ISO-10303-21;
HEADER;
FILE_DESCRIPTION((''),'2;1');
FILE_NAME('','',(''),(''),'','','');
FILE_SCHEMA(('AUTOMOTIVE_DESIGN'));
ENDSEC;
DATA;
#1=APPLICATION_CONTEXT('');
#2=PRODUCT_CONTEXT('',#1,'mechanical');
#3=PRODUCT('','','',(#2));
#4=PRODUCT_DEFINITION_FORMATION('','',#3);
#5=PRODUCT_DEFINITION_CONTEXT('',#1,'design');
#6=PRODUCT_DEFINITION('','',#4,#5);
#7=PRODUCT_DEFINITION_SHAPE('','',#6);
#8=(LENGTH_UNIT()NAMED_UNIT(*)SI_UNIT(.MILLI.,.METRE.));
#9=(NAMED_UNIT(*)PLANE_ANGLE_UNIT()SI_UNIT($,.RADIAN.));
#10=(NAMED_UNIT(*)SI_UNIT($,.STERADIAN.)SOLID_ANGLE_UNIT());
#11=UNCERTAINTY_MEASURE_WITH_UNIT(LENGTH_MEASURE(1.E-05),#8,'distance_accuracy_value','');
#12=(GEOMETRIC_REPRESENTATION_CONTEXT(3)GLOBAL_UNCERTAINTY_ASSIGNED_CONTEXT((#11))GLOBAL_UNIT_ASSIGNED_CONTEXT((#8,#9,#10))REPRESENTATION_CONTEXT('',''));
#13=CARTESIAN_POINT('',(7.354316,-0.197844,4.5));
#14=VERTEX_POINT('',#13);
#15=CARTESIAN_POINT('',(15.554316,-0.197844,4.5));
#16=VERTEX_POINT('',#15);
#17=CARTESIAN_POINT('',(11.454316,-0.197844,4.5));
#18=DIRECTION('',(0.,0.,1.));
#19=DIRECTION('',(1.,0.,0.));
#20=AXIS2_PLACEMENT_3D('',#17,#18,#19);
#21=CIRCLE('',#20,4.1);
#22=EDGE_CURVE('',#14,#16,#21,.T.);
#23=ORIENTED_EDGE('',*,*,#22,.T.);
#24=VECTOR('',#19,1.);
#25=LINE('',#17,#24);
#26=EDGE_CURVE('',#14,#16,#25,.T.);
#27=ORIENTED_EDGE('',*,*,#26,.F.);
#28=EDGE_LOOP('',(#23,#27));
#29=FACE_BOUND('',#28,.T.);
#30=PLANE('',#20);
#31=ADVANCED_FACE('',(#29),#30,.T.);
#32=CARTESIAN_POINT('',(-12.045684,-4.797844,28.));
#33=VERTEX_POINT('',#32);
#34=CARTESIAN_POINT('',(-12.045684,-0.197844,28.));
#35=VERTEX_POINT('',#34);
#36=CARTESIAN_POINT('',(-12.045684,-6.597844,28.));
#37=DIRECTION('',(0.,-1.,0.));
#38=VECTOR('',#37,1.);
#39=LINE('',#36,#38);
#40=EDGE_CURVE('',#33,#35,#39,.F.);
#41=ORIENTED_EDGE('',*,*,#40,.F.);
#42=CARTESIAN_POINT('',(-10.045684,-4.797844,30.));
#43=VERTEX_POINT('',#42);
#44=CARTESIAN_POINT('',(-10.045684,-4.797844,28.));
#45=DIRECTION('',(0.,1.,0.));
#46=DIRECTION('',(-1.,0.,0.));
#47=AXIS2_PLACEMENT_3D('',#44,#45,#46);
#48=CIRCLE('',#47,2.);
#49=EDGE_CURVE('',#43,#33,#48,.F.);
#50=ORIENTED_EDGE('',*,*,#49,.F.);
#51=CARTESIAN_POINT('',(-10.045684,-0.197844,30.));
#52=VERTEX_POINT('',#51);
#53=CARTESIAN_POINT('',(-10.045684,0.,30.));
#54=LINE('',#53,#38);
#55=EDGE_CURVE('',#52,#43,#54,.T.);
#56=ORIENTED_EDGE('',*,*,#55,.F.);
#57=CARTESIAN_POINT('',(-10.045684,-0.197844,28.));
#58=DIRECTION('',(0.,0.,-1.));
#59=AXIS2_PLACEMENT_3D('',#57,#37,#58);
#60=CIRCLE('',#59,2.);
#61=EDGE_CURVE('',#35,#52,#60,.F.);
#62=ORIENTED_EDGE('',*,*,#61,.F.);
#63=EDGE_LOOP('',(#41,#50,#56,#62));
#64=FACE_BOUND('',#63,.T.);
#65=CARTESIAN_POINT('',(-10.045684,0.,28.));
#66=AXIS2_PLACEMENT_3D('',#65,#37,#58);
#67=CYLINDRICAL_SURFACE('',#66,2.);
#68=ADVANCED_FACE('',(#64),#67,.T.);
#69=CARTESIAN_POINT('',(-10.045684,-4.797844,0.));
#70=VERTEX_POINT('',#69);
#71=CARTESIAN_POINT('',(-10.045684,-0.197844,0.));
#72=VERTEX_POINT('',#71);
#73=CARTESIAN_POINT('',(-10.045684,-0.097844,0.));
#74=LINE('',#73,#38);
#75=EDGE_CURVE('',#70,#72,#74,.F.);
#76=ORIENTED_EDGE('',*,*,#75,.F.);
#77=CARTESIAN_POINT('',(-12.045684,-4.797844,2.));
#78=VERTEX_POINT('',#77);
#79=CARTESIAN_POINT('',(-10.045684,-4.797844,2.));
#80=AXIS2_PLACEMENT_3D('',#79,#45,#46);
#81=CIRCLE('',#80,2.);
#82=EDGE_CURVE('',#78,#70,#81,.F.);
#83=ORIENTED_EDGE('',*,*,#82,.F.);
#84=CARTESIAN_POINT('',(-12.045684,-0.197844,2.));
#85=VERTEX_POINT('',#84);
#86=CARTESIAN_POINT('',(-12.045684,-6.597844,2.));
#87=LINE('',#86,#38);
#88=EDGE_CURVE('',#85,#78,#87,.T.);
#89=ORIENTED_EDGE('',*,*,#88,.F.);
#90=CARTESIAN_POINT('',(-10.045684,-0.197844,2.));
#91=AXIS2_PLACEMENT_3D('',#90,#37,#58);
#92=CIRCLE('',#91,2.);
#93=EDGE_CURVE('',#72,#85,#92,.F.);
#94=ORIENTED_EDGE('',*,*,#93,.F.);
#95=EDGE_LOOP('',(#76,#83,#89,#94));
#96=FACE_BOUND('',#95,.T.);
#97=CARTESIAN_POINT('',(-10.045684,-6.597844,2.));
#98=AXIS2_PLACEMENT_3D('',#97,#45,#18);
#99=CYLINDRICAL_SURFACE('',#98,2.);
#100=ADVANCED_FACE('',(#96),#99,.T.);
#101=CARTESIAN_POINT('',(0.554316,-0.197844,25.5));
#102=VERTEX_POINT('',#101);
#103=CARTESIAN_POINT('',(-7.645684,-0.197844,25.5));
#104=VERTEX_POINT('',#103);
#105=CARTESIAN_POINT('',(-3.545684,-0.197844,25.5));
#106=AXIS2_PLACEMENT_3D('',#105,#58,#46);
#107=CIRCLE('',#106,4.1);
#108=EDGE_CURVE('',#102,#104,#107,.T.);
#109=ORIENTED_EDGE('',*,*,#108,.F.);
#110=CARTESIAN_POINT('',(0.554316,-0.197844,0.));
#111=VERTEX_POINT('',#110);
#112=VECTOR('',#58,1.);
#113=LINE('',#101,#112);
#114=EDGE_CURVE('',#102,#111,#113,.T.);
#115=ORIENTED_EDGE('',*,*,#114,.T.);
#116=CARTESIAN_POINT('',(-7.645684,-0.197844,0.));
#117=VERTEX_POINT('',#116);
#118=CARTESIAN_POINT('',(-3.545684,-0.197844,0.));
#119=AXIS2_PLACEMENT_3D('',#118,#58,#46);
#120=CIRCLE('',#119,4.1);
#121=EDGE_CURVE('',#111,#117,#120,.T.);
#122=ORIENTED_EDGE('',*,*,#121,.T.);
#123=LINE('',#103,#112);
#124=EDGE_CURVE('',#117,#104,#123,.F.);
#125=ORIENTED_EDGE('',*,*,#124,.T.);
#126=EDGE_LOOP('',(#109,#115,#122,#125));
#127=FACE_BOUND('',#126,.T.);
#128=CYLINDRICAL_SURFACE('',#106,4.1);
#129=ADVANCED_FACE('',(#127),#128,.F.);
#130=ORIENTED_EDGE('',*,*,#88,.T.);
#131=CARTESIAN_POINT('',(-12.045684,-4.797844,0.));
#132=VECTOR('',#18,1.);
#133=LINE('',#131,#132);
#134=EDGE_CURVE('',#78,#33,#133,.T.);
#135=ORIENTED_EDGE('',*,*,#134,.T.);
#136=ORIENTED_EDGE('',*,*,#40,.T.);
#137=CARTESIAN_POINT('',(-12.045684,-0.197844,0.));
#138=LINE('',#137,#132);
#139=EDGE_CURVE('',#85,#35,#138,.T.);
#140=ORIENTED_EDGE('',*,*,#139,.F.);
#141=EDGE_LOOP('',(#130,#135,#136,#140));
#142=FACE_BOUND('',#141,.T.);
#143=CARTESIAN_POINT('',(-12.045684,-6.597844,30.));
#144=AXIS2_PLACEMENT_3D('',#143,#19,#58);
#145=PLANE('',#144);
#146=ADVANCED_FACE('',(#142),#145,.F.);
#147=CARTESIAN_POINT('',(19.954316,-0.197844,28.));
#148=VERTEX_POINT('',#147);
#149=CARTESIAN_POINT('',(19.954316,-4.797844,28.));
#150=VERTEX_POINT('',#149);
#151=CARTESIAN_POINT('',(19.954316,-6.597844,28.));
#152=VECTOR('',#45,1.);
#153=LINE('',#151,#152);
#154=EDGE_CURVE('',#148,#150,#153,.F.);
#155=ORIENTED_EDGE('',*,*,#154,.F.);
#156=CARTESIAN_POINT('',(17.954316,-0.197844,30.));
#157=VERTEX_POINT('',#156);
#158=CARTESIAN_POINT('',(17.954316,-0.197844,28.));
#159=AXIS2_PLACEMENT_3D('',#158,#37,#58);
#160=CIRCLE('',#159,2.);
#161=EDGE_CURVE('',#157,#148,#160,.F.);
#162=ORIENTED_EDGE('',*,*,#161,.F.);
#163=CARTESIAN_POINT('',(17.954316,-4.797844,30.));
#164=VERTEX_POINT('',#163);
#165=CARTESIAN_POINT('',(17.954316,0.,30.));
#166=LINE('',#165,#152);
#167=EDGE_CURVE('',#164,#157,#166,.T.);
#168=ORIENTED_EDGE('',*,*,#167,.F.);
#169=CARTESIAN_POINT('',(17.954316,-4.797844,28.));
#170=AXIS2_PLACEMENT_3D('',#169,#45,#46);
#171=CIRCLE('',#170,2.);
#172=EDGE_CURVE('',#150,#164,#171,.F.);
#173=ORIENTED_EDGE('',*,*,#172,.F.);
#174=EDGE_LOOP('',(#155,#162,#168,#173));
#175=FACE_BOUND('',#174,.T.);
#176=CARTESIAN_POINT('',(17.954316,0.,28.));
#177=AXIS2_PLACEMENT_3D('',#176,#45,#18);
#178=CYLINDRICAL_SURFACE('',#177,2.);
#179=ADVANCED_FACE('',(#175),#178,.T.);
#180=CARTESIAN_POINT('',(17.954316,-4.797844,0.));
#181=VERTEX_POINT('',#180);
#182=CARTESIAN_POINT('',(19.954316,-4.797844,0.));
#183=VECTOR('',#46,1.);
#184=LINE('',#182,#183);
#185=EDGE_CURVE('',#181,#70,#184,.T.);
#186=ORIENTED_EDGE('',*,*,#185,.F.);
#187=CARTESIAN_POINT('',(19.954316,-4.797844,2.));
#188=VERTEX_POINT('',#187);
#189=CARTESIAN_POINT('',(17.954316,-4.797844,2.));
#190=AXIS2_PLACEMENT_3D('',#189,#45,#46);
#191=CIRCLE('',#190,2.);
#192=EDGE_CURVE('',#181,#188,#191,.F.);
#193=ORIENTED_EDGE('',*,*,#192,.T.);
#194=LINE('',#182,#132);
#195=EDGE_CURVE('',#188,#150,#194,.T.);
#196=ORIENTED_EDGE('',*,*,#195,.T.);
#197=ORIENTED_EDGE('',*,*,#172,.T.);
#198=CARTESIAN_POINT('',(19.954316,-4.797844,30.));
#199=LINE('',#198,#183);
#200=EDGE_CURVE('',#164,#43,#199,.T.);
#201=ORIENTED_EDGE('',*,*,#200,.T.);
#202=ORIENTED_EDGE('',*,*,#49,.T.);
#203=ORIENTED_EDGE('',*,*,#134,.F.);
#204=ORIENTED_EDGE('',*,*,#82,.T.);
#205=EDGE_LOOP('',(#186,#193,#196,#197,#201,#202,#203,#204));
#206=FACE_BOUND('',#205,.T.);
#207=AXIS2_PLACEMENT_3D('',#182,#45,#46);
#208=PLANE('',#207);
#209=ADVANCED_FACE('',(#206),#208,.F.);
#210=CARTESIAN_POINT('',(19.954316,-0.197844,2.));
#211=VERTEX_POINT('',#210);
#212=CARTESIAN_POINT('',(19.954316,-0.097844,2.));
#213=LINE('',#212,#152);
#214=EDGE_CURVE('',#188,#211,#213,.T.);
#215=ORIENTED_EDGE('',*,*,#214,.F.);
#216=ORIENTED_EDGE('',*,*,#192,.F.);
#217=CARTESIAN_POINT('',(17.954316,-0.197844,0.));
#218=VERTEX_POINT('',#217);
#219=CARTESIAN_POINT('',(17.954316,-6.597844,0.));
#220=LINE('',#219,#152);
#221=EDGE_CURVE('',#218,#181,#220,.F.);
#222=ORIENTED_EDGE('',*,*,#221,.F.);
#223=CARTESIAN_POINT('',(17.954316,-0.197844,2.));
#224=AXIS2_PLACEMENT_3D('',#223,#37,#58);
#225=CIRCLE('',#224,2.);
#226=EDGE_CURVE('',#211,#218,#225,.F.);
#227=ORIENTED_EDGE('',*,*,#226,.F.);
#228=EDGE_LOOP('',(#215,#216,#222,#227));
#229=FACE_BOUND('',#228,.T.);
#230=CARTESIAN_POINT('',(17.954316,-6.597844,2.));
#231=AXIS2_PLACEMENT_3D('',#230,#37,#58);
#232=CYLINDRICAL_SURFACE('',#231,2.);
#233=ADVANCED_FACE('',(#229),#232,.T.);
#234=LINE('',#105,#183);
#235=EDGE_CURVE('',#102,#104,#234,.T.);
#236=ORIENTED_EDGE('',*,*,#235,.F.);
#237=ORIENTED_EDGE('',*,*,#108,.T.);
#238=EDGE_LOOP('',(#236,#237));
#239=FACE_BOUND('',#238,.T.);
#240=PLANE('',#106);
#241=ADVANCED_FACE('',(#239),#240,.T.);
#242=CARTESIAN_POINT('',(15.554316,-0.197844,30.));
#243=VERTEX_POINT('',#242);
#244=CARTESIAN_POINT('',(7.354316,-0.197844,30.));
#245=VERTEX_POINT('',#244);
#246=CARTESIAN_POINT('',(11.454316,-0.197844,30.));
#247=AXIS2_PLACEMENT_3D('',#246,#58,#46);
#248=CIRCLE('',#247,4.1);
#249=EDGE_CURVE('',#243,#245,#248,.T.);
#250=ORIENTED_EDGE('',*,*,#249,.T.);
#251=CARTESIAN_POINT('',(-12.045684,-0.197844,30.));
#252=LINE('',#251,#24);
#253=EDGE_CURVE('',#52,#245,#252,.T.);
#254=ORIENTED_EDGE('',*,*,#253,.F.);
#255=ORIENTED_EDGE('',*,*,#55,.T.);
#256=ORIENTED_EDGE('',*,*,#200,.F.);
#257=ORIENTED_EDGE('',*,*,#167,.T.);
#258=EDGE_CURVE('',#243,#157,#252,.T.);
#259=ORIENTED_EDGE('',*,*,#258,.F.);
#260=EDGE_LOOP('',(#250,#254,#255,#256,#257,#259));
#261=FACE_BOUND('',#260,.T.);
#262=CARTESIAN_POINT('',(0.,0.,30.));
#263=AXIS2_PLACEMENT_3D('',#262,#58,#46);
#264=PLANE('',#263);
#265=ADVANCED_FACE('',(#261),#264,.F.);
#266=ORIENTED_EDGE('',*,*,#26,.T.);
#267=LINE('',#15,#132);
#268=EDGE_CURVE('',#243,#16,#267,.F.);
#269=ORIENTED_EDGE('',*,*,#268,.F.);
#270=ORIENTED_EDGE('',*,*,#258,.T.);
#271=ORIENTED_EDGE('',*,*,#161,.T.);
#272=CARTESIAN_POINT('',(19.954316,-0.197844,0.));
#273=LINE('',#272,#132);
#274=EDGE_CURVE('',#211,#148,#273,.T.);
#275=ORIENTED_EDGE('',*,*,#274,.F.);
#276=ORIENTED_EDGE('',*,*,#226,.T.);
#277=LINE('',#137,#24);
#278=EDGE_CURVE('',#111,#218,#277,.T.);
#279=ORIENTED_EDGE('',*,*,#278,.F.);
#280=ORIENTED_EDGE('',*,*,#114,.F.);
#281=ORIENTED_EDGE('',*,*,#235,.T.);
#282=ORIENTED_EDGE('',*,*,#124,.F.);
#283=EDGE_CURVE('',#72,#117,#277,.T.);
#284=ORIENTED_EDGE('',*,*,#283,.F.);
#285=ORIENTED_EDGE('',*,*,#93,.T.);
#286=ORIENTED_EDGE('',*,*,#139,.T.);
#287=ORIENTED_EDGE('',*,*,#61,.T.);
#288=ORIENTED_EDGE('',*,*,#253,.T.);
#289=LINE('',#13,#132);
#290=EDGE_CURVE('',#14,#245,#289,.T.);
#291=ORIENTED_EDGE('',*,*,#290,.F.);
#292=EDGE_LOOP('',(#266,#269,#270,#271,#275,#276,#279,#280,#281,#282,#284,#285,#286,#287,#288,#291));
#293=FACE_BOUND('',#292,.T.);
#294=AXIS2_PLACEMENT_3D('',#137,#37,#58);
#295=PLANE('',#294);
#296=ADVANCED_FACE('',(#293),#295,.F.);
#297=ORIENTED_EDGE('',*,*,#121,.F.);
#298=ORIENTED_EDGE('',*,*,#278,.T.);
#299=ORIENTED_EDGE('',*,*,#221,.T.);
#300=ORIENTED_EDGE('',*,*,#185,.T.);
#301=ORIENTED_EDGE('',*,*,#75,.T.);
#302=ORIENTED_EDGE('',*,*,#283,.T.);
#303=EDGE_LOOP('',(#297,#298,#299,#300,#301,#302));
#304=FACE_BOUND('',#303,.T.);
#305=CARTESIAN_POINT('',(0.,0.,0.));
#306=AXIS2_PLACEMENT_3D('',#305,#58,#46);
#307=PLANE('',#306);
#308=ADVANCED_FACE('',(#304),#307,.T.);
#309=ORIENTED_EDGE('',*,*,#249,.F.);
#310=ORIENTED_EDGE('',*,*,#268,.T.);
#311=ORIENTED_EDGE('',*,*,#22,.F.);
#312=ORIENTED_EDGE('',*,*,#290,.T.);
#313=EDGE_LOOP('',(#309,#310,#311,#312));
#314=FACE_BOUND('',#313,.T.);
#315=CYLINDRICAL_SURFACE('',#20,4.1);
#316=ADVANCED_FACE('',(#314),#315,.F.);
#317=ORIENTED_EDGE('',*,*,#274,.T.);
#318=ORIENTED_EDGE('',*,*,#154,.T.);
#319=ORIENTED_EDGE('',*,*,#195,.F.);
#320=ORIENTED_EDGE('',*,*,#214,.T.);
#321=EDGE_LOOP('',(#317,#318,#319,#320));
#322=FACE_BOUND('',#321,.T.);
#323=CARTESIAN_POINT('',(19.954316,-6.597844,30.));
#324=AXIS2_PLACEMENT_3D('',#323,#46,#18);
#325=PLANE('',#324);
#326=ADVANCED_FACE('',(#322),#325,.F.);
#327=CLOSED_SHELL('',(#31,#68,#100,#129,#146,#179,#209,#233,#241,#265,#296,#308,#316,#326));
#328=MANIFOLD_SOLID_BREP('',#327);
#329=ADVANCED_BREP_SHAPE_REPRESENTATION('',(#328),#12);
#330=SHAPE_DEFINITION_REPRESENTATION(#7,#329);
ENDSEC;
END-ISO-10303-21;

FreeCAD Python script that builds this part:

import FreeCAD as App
import Part
import Sketcher
from FreeCAD import Vector


def edges_at(feature, points):
    """Names of the edges that pass closest to the given points."""
    edges = feature.Shape.Edges
    near = lambda p: min(range(len(edges)), key=lambda i: edges[i].distToShape(Part.Vertex(*p))[0])
    return sorted({f"Edge{near(p) + 1}" for p in points})


def add_polygon(sketch, points):
    """Adds a closed chain of lines whose ends are joined by coincident constraints."""
    first, n = sketch.GeometryCount, len(points)
    for a, b in zip(points, points[1:] + points[:1]):
        sketch.addGeometry(Part.LineSegment(App.Vector(*a, 0), App.Vector(*b, 0)), False)
    for i in range(n):
        sketch.addConstraint(Sketcher.Constraint("Coincident", first + i, 2, first + (i + 1) % n, 1))

doc = App.newDocument("Part")
body = doc.addObject("PartDesign::Body", "Body")

# Sketch on XY plane
sketch1 = doc.addObject("Sketcher::SketchObject", "Sketch")
body.addObject(sketch1)
sketch1.AttachmentSupport = (doc.XY_Plane, [""])
sketch1.MapMode = "FlatFace"
add_polygon(sketch1, [(-12, 0), (-12, -7), (20, -7), (20, 0)])  # lines 0-3
sketch1.addConstraint(Sketcher.Constraint("Vertical", 0))
sketch1.addConstraint(Sketcher.Constraint("Horizontal", 1))
sketch1.addConstraint(Sketcher.Constraint("Vertical", 2))
sketch1.addConstraint(Sketcher.Constraint("Horizontal", 3))
sketch1.addConstraint(Sketcher.Constraint("DistanceX", 1, 1, 1, 2, 32.0))
sketch1.addConstraint(Sketcher.Constraint("DistanceY", 0, 2, 0, 1, 6.5))
sketch1.addConstraint(Sketcher.Constraint("DistanceX", 0, 2, -1, 1, 12.045684))
sketch1.addConstraint(Sketcher.Constraint("DistanceY", 0, 2, -1, 1, 6.597844))
pad1 = doc.addObject("PartDesign::Pad", "Pad")
body.addObject(pad1)
pad1.Profile = sketch1
pad1.Length = 30
doc.recompute()

fillet = doc.addObject("PartDesign::Fillet", "Fillet")
body.addObject(fillet)
fillet.Base = (pad1, edges_at(pad1, [
    (19.954, -3.348, 30),
    (-12.046, -3.348, 30),
    (19.954, -3.348, 0),
    (-12.046, -3.348, 0),
]))
fillet.Radius = 2

# Sketch on XY plane
sketch2 = doc.addObject("Sketcher::SketchObject", "Sketch001")
body.addObject(sketch2)
sketch2.AttachmentSupport = (doc.XY_Plane, [""])
sketch2.MapMode = "FlatFace"
sketch2.addGeometry(Part.Circle(Vector(-3.5, -0.2, 0), Vector(0, 0, 1), 4.1), False)
sketch2.addConstraint(Sketcher.Constraint("Diameter", 0, 8.2))
sketch2.addConstraint(Sketcher.Constraint("DistanceX", 0, 3, -1, 1, 3.545684))
sketch2.addConstraint(Sketcher.Constraint("DistanceY", 0, 3, -1, 1, 0.197844))
pocket1 = doc.addObject("PartDesign::Pocket", "Pocket")
body.addObject(pocket1)
pocket1.Profile = sketch2
pocket1.Length = 25.5
pocket1.Reversed = True

# Sketch on XY plane
sketch3 = doc.addObject("Sketcher::SketchObject", "Sketch002")
body.addObject(sketch3)
sketch3.AttachmentSupport = (doc.XY_Plane, [""])
sketch3.MapMode = "FlatFace"
sketch3.AttachmentOffset = App.Placement(Vector(0, 0, 30), App.Rotation())
sketch3.addGeometry(Part.Circle(Vector(11.5, -0.2, 0), Vector(0, 0, 1), 4.1), False)
sketch3.addConstraint(Sketcher.Constraint("Diameter", 0, 8.2))
sketch3.addConstraint(Sketcher.Constraint("DistanceX", -1, 1, 0, 3, 11.454316))
sketch3.addConstraint(Sketcher.Constraint("DistanceY", 0, 3, -1, 1, 0.197844))
pocket2 = doc.addObject("PartDesign::Pocket", "Pocket001")
body.addObject(pocket2)
pocket2.Profile = sketch3
pocket2.Length = 25.5

# Sketch on XY plane
sketch4 = doc.addObject("Sketcher::SketchObject", "Sketch003")
body.addObject(sketch4)
sketch4.AttachmentSupport = (doc.XY_Plane, [""])
sketch4.MapMode = "FlatFace"
sketch4.AttachmentOffset = App.Placement(Vector(0, 0, 30), App.Rotation())
add_polygon(sketch4, [(-12.05, -0.1), (-12.05, -0.2), (19.95, -0.2), (19.95, -0.1)])  # lines 0-3
sketch4.addConstraint(Sketcher.Constraint("Vertical", 0))
sketch4.addConstraint(Sketcher.Constraint("Horizontal", 1))
sketch4.addConstraint(Sketcher.Constraint("Vertical", 2))
sketch4.addConstraint(Sketcher.Constraint("Horizontal", 3))
sketch4.addConstraint(Sketcher.Constraint("DistanceX", 1, 1, 1, 2, 32.0))
sketch4.addConstraint(Sketcher.Constraint("DistanceY", 0, 2, 0, 1, 0.1))
sketch4.addConstraint(Sketcher.Constraint("DistanceX", 0, 2, -1, 1, 12.045684))
sketch4.addConstraint(Sketcher.Constraint("DistanceY", 0, 2, -1, 1, 0.197844))
pocket3 = doc.addObject("PartDesign::Pocket", "Pocket002")
body.addObject(pocket3)
pocket3.Profile = sketch4
pocket3.Type = "ThroughAll"

# Sketch on XY plane
sketch5 = doc.addObject("Sketcher::SketchObject", "Sketch004")
body.addObject(sketch5)
sketch5.AttachmentSupport = (doc.XY_Plane, [""])
sketch5.MapMode = "FlatFace"
sketch5.AttachmentOffset = App.Placement(Vector(0, 0, 30), App.Rotation())
add_polygon(sketch5, [(-12, -4.8), (-12, -6.6), (20, -6.6), (20, -4.8)])  # lines 0-3
sketch5.addConstraint(Sketcher.Constraint("Vertical", 0))
sketch5.addConstraint(Sketcher.Constraint("Horizontal", 1))
sketch5.addConstraint(Sketcher.Constraint("Vertical", 2))
sketch5.addConstraint(Sketcher.Constraint("Horizontal", 3))
sketch5.addConstraint(Sketcher.Constraint("DistanceX", 1, 1, 1, 2, 32.0))
sketch5.addConstraint(Sketcher.Constraint("DistanceY", 0, 2, 0, 1, 1.8))
sketch5.addConstraint(Sketcher.Constraint("DistanceX", 0, 2, -1, 1, 12.045684))
sketch5.addConstraint(Sketcher.Constraint("DistanceY", 0, 2, -1, 1, 6.597844))
pocket4 = doc.addObject("PartDesign::Pocket", "Pocket003")
body.addObject(pocket4)
pocket4.Profile = sketch5
pocket4.Type = "ThroughAll"

doc.recompute()
